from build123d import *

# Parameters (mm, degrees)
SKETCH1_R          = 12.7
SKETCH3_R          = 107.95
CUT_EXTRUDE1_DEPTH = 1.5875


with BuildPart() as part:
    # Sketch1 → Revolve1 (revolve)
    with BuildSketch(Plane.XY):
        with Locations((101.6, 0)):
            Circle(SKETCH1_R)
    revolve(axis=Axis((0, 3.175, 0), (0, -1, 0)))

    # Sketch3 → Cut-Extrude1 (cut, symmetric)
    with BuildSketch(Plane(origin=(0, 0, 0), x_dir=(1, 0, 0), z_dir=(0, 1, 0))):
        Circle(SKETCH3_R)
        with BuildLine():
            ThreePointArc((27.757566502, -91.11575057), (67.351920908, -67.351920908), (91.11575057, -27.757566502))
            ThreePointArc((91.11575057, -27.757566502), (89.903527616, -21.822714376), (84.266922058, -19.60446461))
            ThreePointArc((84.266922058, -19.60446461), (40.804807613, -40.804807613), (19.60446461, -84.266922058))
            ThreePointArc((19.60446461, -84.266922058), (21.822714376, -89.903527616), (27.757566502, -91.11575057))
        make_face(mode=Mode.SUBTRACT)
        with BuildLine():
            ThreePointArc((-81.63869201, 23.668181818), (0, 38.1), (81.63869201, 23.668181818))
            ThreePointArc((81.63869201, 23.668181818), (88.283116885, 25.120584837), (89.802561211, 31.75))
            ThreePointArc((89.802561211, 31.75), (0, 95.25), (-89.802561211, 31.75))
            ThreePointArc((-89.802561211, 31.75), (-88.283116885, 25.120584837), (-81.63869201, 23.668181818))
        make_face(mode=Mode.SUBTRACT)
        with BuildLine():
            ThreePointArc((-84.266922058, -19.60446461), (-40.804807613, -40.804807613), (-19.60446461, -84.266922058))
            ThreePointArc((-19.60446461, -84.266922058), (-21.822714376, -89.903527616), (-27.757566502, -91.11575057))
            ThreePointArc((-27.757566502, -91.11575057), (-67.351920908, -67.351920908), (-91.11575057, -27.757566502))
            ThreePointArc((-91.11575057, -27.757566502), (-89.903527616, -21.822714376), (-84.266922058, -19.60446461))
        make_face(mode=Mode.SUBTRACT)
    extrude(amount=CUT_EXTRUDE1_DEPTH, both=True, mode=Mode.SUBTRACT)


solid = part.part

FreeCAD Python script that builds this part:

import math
import FreeCAD as App
import Part
import Sketcher

V = App.Vector
Q = App.Units.Quantity

doc = App.newDocument("Part")
body = doc.addObject("PartDesign::Body", "Body")

# Sketch on XY plane
sketch1 = body.newObject("Sketcher::SketchObject", "Sketch")
sketch1.AttachmentSupport = (doc.getObject("XY_Plane"), [""])
sketch1.MapMode = "FlatFace"
sketch1.addGeometry(Part.Circle(V(101.6, 0, 0), V(0, 0, 1), 12.7), False)
sketch1.addConstraint([
    Sketcher.Constraint("PointOnObject", 0, 3, -1),
    Sketcher.Constraint("Diameter", 0, Q("1 in")),
    Sketcher.Constraint("DistanceX", -1, 1, 0, 3, Q("4 in")),
])
revolution = body.newObject("PartDesign::Revolution", "Revolution")
revolution.Profile = sketch1
revolution.ReferenceAxis = (sketch1, ["V_Axis"])
revolution.Angle = 360

# Sketch on XZ plane
sketch2 = body.newObject("Sketcher::SketchObject", "Sketch001")
sketch2.AttachmentSupport = (doc.getObject("XZ_Plane"), [""])
sketch2.MapMode = "FlatFace"
sketch2.addGeometry([
    Part.Circle(V(0, 0, 0), V(0, 0, 1), 107.95),  # 0
    Part.ArcOfCircle(Part.Circle(V(-85.041367, 25.907062, 0), V(0, 0, 1), 6.35), math.radians(163.05713), math.radians(277.005225)),  # 1
    Part.ArcOfCircle(Part.Circle(V(-93.325559, 93.325559, 0), V(0, 0, 1), 74.275559), math.radians(-82.994775), math.radians(-7.005225)),  # 2
    Part.ArcOfCircle(Part.Circle(V(-25.907062, 85.041367, 0), V(0, 0, 1), 6.35), math.radians(-7.005225), math.radians(106.94287)),  # 3
    Part.ArcOfCircle(Part.Circle(V(0, 0, 0), V(0, 0, 1), 95.25), math.radians(106.94287), math.radians(163.05713)),  # 4
    Part.ArcOfCircle(Part.Circle(V(0, 0, 0), V(0, 0, 1), 95.25), math.radians(16.94287), math.radians(73.05713)),  # 5
    Part.ArcOfCircle(Part.Circle(V(25.907062, 85.041367, 0), V(0, 0, 1), 6.35), math.radians(73.05713), math.radians(187.005225)),  # 6
    Part.ArcOfCircle(Part.Circle(V(93.325559, 93.325559, 0), V(0, 0, 1), 74.275559), math.radians(-172.994775), math.radians(-97.005225)),  # 7
    Part.ArcOfCircle(Part.Circle(V(85.041367, 25.907062, 0), V(0, 0, 1), 6.35), math.radians(-97.005225), math.radians(16.94287)),  # 8
    Part.ArcOfCircle(Part.Circle(V(0, 200.025, 0), V(0, 0, 1), 238.125), math.radians(-110.049976), math.radians(-69.950024)),  # 9
    Part.ArcOfCircle(Part.Circle(V(-83.815724, -29.633333, 0), V(0, 0, 1), 6.35), math.radians(69.950024), math.radians(199.471221)),  # 10
    Part.ArcOfCircle(Part.Circle(V(0, 0, 0), V(0, 0, 1), 95.25), math.radians(-160.528779), math.radians(-19.471221)),  # 11
    Part.ArcOfCircle(Part.Circle(V(83.815724, -29.633333, 0), V(0, 0, 1), 6.35), math.radians(-19.471221), math.radians(110.049976)),  # 12
], False)
sketch2.addConstraint([
    Sketcher.Constraint("Tangent", 1, 2, 2, 1),
    Sketcher.Constraint("Tangent", 2, 2, 3, 1),
    Sketcher.Constraint("Tangent", 3, 2, 4, 1),
    Sketcher.Constraint("Tangent", 4, 2, 1, 1),
    Sketcher.Constraint("Tangent", 5, 2, 6, 1),
    Sketcher.Constraint("Tangent", 6, 2, 7, 1),
    Sketcher.Constraint("Tangent", 7, 2, 8, 1),
    Sketcher.Constraint("Tangent", 8, 2, 5, 1),
    Sketcher.Constraint("Tangent", 9, 1, 10, 1),
    Sketcher.Constraint("Tangent", 10, 2, 11, 1),
    Sketcher.Constraint("Tangent", 11, 2, 12, 1),
    Sketcher.Constraint("Tangent", 12, 2, 9, 2),
    Sketcher.Constraint("Coincident", 0, 3, -1, 1),
    Sketcher.Constraint("Coincident", 4, 3, -1, 1),
    Sketcher.Constraint("Coincident", 5, 3, -1, 1),
    Sketcher.Constraint("Coincident", 11, 3, -1, 1),
    Sketcher.Constraint("Equal", 1, 3),
    Sketcher.Constraint("Equal", 4, 5),
    Sketcher.Constraint("Equal", 3, 6),
    Sketcher.Constraint("Equal", 2, 7),
    Sketcher.Constraint("Equal", 6, 8),
    Sketcher.Constraint("Equal", 8, 10),
    Sketcher.Constraint("Equal", 5, 11),
    Sketcher.Constraint("Equal", 10, 12),
    Sketcher.Constraint("Symmetric", 2, 3, 7, 3, -2),
    Sketcher.Constraint("PointOnObject", 9, 3, -2),
    Sketcher.Constraint("Diameter", 0, Q("8.5 in")),
    Sketcher.Constraint("Radius", 1, Q("0.25 in")),
    Sketcher.Constraint("Radius", 4, Q("3.75 in")),
    Sketcher.Constraint("Radius", 9, Q("9.375 in")),
    Sketcher.Constraint("DistanceY", 10, 2, -1, 1, Q("1.25 in")),
    Sketcher.Constraint("Radius", 2, 74.275559),
    Sketcher.Constraint("DistanceX", 1, 2, 10, 3, 0.451198),
    Sketcher.Constraint("DistanceX", 3, 2, 2, 2, 8.153102),
])
pocket1 = body.newObject("PartDesign::Pocket", "Pocket")
pocket1.Profile = sketch2
pocket1.Length = Q("0.125 in")
pocket1.Midplane = True

doc.recompute()
